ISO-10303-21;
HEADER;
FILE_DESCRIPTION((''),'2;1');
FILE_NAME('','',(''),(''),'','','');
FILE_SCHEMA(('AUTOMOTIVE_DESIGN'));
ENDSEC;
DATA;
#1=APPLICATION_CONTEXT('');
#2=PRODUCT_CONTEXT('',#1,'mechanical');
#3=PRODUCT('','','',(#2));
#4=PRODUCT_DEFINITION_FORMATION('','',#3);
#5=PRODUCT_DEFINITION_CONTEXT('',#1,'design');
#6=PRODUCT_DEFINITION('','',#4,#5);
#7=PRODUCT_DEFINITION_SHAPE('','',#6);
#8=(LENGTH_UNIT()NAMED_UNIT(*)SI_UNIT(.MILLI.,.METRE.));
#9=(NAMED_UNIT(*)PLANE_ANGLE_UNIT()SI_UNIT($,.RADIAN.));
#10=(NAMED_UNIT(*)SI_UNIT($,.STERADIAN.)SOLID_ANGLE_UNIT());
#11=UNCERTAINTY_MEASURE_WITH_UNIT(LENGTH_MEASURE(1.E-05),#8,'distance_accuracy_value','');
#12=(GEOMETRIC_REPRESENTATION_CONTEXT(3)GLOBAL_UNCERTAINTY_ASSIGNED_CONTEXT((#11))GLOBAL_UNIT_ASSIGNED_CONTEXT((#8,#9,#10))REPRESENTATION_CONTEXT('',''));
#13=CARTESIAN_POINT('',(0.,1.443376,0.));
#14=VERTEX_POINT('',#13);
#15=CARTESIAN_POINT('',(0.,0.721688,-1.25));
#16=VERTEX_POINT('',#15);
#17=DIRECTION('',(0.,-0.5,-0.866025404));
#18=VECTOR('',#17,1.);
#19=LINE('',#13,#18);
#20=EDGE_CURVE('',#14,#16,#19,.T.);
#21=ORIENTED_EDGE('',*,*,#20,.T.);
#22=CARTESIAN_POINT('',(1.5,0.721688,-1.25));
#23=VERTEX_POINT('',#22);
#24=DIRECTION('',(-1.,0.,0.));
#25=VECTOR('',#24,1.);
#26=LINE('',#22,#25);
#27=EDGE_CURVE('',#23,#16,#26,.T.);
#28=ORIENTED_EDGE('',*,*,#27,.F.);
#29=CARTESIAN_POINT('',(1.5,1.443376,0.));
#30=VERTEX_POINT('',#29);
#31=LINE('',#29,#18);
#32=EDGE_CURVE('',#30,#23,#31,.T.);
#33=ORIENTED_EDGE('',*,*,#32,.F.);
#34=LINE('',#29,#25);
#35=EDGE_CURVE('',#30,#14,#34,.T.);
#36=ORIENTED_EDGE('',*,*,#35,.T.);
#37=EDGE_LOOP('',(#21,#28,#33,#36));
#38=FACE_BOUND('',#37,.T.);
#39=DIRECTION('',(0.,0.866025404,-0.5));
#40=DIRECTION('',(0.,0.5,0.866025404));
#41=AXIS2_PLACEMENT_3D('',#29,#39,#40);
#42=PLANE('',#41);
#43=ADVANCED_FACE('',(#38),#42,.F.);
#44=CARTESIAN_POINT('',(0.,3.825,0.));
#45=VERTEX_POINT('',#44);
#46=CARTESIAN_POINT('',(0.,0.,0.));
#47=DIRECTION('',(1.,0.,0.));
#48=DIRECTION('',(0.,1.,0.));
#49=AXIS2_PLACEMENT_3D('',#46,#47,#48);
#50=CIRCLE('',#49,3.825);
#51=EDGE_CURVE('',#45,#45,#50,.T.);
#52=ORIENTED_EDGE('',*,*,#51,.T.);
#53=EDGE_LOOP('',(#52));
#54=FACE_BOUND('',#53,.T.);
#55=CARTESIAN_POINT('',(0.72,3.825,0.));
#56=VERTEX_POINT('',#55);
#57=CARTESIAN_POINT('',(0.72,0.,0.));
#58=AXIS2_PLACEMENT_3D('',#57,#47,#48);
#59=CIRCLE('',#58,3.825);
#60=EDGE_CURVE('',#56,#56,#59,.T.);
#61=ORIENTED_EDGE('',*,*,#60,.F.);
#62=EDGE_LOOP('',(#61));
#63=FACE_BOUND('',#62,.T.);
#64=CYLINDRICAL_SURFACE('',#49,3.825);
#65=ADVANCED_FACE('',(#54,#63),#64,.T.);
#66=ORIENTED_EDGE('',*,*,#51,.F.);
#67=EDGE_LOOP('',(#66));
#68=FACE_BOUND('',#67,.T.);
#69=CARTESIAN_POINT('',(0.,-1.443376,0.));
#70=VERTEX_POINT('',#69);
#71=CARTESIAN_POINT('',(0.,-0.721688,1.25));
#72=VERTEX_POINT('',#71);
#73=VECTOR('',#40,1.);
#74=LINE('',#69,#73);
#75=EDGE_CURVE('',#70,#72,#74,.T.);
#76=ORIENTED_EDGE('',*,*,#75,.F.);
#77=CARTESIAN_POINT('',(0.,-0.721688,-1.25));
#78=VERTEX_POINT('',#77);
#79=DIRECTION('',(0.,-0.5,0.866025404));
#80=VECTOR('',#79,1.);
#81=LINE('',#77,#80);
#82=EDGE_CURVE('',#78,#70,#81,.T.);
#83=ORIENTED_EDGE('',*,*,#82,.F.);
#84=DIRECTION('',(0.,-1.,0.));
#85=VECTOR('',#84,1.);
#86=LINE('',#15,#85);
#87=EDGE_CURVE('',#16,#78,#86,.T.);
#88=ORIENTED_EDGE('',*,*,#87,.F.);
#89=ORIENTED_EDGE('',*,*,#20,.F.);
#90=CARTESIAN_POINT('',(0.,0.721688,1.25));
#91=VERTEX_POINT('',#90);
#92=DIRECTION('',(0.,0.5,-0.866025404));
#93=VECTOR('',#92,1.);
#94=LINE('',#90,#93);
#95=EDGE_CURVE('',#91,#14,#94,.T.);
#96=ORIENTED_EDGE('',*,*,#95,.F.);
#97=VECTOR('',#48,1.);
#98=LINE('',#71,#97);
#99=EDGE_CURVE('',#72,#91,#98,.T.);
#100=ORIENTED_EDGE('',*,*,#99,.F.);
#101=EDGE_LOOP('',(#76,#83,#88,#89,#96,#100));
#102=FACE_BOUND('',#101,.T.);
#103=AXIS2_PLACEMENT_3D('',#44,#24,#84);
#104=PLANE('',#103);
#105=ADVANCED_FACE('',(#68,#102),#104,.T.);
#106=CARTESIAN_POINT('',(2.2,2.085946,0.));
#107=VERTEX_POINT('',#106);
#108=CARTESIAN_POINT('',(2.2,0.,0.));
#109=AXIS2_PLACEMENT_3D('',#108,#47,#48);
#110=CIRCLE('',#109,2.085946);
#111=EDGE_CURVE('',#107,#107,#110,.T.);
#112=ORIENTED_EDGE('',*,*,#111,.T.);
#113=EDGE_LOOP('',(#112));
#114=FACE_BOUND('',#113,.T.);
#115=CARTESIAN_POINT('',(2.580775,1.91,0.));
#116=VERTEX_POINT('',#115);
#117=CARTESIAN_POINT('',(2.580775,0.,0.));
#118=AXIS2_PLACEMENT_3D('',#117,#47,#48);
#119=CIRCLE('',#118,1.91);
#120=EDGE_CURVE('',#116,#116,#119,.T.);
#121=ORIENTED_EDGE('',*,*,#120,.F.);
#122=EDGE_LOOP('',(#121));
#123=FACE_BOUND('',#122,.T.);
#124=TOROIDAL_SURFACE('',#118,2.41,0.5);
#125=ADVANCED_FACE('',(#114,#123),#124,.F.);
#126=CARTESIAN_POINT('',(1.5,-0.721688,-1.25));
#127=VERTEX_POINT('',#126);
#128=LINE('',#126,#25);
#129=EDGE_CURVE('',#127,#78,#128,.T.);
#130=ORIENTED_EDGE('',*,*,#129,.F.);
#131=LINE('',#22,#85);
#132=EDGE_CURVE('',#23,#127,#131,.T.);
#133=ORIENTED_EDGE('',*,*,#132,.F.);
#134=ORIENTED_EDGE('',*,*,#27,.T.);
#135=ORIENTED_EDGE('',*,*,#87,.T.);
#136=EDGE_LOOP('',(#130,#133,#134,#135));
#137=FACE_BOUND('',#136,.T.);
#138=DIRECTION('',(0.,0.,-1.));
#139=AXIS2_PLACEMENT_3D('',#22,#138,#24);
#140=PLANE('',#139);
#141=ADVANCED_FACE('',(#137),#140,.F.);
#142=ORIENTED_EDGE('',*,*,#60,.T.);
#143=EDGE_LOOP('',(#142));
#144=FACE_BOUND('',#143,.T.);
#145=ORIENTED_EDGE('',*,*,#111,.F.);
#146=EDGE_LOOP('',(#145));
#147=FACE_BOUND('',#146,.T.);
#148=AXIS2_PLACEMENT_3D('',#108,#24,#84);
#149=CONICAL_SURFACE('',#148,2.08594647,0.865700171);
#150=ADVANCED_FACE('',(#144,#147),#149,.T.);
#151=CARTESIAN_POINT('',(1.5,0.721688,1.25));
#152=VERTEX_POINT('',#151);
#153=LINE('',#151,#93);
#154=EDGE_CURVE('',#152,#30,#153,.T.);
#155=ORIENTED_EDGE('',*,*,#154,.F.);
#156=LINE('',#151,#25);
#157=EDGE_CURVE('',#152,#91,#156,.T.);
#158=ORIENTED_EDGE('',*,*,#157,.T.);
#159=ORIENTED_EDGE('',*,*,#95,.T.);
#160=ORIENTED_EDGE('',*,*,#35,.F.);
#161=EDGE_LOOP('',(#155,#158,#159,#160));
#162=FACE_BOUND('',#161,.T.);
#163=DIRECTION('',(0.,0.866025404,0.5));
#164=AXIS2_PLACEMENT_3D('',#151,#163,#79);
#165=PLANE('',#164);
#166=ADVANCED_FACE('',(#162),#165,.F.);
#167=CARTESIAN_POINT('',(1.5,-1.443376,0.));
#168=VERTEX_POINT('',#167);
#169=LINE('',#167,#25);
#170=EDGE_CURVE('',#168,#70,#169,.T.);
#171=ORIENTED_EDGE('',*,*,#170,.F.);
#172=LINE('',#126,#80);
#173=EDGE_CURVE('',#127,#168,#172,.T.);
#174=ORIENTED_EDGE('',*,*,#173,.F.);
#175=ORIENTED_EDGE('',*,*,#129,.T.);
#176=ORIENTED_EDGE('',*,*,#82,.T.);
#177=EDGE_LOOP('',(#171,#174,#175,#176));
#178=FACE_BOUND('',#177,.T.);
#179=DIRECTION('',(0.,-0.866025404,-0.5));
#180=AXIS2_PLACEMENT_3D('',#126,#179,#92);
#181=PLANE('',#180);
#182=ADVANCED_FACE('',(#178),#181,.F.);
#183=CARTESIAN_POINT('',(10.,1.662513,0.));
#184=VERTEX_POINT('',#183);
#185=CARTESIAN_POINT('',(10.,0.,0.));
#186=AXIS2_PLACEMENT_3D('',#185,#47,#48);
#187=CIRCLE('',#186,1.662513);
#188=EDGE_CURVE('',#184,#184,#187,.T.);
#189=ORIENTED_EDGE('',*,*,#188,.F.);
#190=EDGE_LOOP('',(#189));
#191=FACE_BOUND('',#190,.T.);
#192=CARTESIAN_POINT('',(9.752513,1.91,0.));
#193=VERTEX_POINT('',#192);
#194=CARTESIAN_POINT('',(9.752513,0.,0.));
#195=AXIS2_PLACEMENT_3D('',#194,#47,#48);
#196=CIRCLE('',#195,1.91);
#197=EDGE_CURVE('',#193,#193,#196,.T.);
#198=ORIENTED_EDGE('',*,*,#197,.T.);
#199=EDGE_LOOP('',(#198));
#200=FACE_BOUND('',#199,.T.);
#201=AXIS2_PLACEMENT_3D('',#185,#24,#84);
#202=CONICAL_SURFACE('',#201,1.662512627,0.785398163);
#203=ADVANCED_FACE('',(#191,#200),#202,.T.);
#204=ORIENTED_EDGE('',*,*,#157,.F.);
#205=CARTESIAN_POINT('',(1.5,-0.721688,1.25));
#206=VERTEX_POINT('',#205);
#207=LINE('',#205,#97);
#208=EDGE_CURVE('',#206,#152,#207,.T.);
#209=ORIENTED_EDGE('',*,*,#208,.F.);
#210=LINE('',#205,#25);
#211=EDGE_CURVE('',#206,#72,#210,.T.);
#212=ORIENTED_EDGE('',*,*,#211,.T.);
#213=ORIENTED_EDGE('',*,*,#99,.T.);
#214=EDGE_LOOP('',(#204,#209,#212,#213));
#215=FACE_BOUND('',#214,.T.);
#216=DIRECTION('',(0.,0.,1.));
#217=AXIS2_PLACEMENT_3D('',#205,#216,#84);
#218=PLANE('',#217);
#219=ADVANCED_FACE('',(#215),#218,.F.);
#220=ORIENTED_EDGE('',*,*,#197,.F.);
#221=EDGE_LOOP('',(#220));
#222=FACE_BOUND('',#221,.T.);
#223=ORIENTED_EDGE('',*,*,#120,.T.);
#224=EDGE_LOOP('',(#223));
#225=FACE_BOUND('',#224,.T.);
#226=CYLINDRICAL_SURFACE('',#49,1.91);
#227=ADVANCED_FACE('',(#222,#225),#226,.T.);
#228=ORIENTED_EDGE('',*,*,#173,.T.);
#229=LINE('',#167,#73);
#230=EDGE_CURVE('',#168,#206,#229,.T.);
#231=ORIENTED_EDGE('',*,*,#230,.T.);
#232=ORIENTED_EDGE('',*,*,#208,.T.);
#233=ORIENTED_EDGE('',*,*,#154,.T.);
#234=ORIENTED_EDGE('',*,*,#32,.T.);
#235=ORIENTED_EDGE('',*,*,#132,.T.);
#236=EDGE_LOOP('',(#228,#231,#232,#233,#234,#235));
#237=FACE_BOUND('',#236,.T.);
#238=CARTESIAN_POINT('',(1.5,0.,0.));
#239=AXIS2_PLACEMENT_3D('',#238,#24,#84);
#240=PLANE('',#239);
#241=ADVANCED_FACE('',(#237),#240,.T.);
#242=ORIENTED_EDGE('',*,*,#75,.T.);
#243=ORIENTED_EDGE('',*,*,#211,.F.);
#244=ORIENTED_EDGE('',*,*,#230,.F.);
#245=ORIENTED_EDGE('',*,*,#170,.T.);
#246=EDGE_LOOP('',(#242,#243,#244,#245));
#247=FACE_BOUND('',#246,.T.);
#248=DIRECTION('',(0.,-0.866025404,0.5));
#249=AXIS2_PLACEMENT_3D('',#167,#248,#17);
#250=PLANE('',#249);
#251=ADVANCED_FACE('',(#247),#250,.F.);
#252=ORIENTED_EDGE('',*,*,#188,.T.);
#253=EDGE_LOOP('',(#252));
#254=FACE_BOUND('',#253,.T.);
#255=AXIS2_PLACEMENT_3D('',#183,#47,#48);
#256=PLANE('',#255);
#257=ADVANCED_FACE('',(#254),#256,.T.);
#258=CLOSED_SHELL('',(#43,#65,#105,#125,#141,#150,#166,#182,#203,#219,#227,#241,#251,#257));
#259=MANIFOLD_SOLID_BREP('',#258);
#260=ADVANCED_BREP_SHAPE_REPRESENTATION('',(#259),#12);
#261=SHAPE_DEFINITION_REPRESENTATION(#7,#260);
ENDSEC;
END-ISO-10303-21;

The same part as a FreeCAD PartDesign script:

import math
import FreeCAD as App
import Part
import Sketcher
Q = App.Units.Quantity


def add_polygon(sketch, points):
    """Adds a closed chain of lines whose ends are joined by coincident constraints."""
    first, n = sketch.GeometryCount, len(points)
    for a, b in zip(points, points[1:] + points[:1]):
        sketch.addGeometry(Part.LineSegment(App.Vector(*a, 0), App.Vector(*b, 0)), False)
    for i in range(n):
        sketch.addConstraint(Sketcher.Constraint("Coincident", first + i, 2, first + (i + 1) % n, 1))

doc = App.newDocument("Part")
body = doc.addObject("PartDesign::Body", "Body")

# Sketch on XY plane
sketch1 = body.newObject("Sketcher::SketchObject", "Sketch")
sketch1.AttachmentSupport = (doc.getObject("XY_Plane"), [""])
sketch1.MapMode = "FlatFace"
sketch1.addGeometry([
    Part.LineSegment(App.Vector(9.752513, 1.91, 0), App.Vector(2.580775, 1.91, 0)),  # 0
    Part.ArcOfCircle(Part.Circle(App.Vector(2.580775, 2.41, 0), App.Vector(0, 0, 1), 0.5), math.radians(-139.600966), math.radians(-90)),  # 1
    Part.LineSegment(App.Vector(2.2, 2.085946, 0), App.Vector(0.72, 3.825, 0)),  # 2
    Part.LineSegment(App.Vector(0.72, 3.825, 0), App.Vector(0, 3.825, 0)),  # 3
    Part.LineSegment(App.Vector(0, 3.825, 0), App.Vector(0, 0, 0)),  # 4
    Part.LineSegment(App.Vector(0, 0, 0), App.Vector(10, 0, 0)),  # 5
    Part.LineSegment(App.Vector(10, 0, 0), App.Vector(10, 1.662513, 0)),  # 6
    Part.LineSegment(App.Vector(10, 1.662513, 0), App.Vector(9.752513, 1.91, 0)),  # 7
], False)
sketch1.addConstraint([
    Sketcher.Constraint("Tangent", 0, 2, 1, 2),
    Sketcher.Constraint("Tangent", 1, 1, 2, 1),
    Sketcher.Constraint("Coincident", 2, 2, 3, 1),
    Sketcher.Constraint("Coincident", 3, 2, 4, 1),
    Sketcher.Constraint("Coincident", 4, 2, 5, 1),
    Sketcher.Constraint("Coincident", 5, 2, 6, 1),
    Sketcher.Constraint("Coincident", 6, 2, 7, 1),
    Sketcher.Constraint("Coincident", 7, 2, 0, 1),
    Sketcher.Constraint("Horizontal", 0),
    Sketcher.Constraint("Horizontal", 3),
    Sketcher.Constraint("Vertical", 4),
    Sketcher.Constraint("Horizontal", 5),
    Sketcher.Constraint("Vertical", 6),
    Sketcher.Constraint("Coincident", 4, 2, -1, 1),
    Sketcher.Constraint("Radius", 1, 0.5),
    Sketcher.Constraint("DistanceX", 5, 1, 5, 2, 10.0),
    Sketcher.Constraint("Angle", 7, Q("135 deg")),
    Sketcher.Constraint("DistanceX", 3, 2, 3, 1, 0.72),
    Sketcher.Constraint("DistanceX", -1, 1, 1, 1, 2.2),
    Sketcher.Constraint("Distance", 7, 0.35),
    Sketcher.Constraint("DistanceY", 4, 2, 4, 1, 3.825),
    Sketcher.Constraint("DistanceY", -1, 1, 1, 3, 2.41),
])
revolution = body.newObject("PartDesign::Revolution", "Revolution")
revolution.Profile = sketch1
revolution.ReferenceAxis = (sketch1, ["H_Axis"])
revolution.Angle = 360

# Sketch on YZ plane
sketch2 = body.newObject("Sketcher::SketchObject", "Sketch001")
sketch2.AttachmentSupport = (doc.getObject("YZ_Plane"), [""])
sketch2.MapMode = "FlatFace"
add_polygon(sketch2, [(0.721688, 1.25), (1.443376, 0), (0.721688, -1.25), (-0.721688, -1.25), (-1.443376, 0), (-0.721688, 1.25)])  # lines 0-5
sketch2.addConstraint([
    Sketcher.Constraint("Horizontal", 2),
    Sketcher.Constraint("Horizontal", 5),
    Sketcher.Constraint("Symmetric", 0, 2, 3, 2, -1, 1),
    Sketcher.Constraint("Symmetric", 1, 2, 4, 2, -1, 1),
    Sketcher.Constraint("PointOnObject", 0, 2, -1),
    Sketcher.Constraint("Parallel", 0, 3),
    Sketcher.Constraint("Vertical", 2, 2, 4, 2),
    Sketcher.Constraint("Angle", 0, Q("-60 deg")),
    Sketcher.Constraint("DistanceY", 2, 2, 4, 2, 2.5),
    Sketcher.Constraint("DistanceX", 2, 2, 2, 1, 1.443376),
])
pocket1 = body.newObject("PartDesign::Pocket", "Pocket")
pocket1.Profile = sketch2
pocket1.Length = 1.5
pocket1.Reversed = True

doc.recompute()
